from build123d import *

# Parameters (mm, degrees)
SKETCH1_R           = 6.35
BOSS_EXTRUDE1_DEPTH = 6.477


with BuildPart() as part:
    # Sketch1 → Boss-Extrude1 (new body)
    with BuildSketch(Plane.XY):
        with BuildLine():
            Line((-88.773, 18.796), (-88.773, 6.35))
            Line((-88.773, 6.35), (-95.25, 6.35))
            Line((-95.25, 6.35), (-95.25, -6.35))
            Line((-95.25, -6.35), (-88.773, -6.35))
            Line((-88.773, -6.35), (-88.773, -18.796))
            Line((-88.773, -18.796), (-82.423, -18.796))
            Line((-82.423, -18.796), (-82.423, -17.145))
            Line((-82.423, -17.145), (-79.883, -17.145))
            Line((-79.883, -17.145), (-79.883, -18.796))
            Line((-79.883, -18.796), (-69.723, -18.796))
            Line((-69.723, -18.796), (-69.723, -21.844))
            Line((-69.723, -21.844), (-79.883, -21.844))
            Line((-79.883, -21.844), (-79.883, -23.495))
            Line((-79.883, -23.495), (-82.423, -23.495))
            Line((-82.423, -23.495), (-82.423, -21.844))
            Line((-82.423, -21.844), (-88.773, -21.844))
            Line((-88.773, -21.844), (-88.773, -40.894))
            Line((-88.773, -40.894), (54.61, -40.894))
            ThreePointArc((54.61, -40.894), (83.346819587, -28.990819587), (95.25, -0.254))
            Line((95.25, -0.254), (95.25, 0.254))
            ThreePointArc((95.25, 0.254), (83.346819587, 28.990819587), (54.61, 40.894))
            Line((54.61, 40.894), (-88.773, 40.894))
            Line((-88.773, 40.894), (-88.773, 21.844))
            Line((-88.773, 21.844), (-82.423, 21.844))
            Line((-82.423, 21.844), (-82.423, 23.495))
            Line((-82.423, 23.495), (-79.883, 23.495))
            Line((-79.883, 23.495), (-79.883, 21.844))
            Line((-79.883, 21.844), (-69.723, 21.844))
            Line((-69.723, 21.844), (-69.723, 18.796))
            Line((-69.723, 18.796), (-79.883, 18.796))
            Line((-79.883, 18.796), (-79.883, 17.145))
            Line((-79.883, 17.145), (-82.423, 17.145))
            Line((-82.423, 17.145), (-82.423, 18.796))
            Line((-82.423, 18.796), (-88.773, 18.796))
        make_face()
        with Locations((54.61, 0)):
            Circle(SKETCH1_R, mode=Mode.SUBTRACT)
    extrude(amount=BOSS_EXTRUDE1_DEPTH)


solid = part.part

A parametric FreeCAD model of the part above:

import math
import FreeCAD as App
import Part
import Sketcher
Q = App.Units.Quantity

doc = App.newDocument("Part")
body = doc.addObject("PartDesign::Body", "Body")

# Sketch on XY plane
sketch1 = body.newObject("Sketcher::SketchObject", "Sketch")
sketch1.AttachmentSupport = (doc.getObject("XY_Plane"), [""])
sketch1.MapMode = "FlatFace"
sketch1.addGeometry([
    Part.LineSegment(App.Vector(-88.773, 18.796, 0), App.Vector(-88.773, 6.35, 0)),  # 0
    Part.LineSegment(App.Vector(-88.773, 6.35, 0), App.Vector(-95.25, 6.35, 0)),  # 1
    Part.LineSegment(App.Vector(-95.25, 6.35, 0), App.Vector(-95.25, -6.35, 0)),  # 2
    Part.LineSegment(App.Vector(-95.25, -6.35, 0), App.Vector(-88.773, -6.35, 0)),  # 3
    Part.LineSegment(App.Vector(-88.773, -6.35, 0), App.Vector(-88.773, -18.796, 0)),  # 4
    Part.LineSegment(App.Vector(-88.773, -18.796, 0), App.Vector(-82.423, -18.796, 0)),  # 5
    Part.LineSegment(App.Vector(-82.423, -18.796, 0), App.Vector(-82.423, -17.145, 0)),  # 6
    Part.LineSegment(App.Vector(-82.423, -17.145, 0), App.Vector(-79.883, -17.145, 0)),  # 7
    Part.LineSegment(App.Vector(-79.883, -17.145, 0), App.Vector(-79.883, -18.796, 0)),  # 8
    Part.LineSegment(App.Vector(-79.883, -18.796, 0), App.Vector(-69.723, -18.796, 0)),  # 9
    Part.LineSegment(App.Vector(-69.723, -18.796, 0), App.Vector(-69.723, -21.844, 0)),  # 10
    Part.LineSegment(App.Vector(-69.723, -21.844, 0), App.Vector(-79.883, -21.844, 0)),  # 11
    Part.LineSegment(App.Vector(-79.883, -21.844, 0), App.Vector(-79.883, -23.495, 0)),  # 12
    Part.LineSegment(App.Vector(-79.883, -23.495, 0), App.Vector(-82.423, -23.495, 0)),  # 13
    Part.LineSegment(App.Vector(-82.423, -23.495, 0), App.Vector(-82.423, -21.844, 0)),  # 14
    Part.LineSegment(App.Vector(-82.423, -21.844, 0), App.Vector(-88.773, -21.844, 0)),  # 15
    Part.LineSegment(App.Vector(-88.773, -21.844, 0), App.Vector(-88.773, -40.894, 0)),  # 16
    Part.LineSegment(App.Vector(-88.773, -40.894, 0), App.Vector(54.61, -40.894, 0)),  # 17
    Part.ArcOfCircle(Part.Circle(App.Vector(54.61, -0.254, 0), App.Vector(0, 0, 1), 40.64), math.radians(-90), math.radians(0)),  # 18
    Part.LineSegment(App.Vector(95.25, -0.254, 0), App.Vector(95.25, 0.254, 0)),  # 19
    Part.ArcOfCircle(Part.Circle(App.Vector(54.61, 0.254, 0), App.Vector(0, 0, 1), 40.64), math.radians(0), math.radians(90)),  # 20
    Part.LineSegment(App.Vector(54.61, 40.894, 0), App.Vector(-88.773, 40.894, 0)),  # 21
    Part.LineSegment(App.Vector(-88.773, 40.894, 0), App.Vector(-88.773, 21.844, 0)),  # 22
    Part.LineSegment(App.Vector(-88.773, 21.844, 0), App.Vector(-82.423, 21.844, 0)),  # 23
    Part.LineSegment(App.Vector(-82.423, 21.844, 0), App.Vector(-82.423, 23.495, 0)),  # 24
    Part.LineSegment(App.Vector(-82.423, 23.495, 0), App.Vector(-79.883, 23.495, 0)),  # 25
    Part.LineSegment(App.Vector(-79.883, 23.495, 0), App.Vector(-79.883, 21.844, 0)),  # 26
    Part.LineSegment(App.Vector(-79.883, 21.844, 0), App.Vector(-69.723, 21.844, 0)),  # 27
    Part.LineSegment(App.Vector(-69.723, 21.844, 0), App.Vector(-69.723, 18.796, 0)),  # 28
    Part.LineSegment(App.Vector(-69.723, 18.796, 0), App.Vector(-79.883, 18.796, 0)),  # 29
    Part.LineSegment(App.Vector(-79.883, 18.796, 0), App.Vector(-79.883, 17.145, 0)),  # 30
    Part.LineSegment(App.Vector(-79.883, 17.145, 0), App.Vector(-82.423, 17.145, 0)),  # 31
    Part.LineSegment(App.Vector(-82.423, 17.145, 0), App.Vector(-82.423, 18.796, 0)),  # 32
    Part.LineSegment(App.Vector(-82.423, 18.796, 0), App.Vector(-88.773, 18.796, 0)),  # 33
    Part.Circle(App.Vector(54.61, 0, 0), App.Vector(0, 0, 1), 6.35),  # 34
], False)
sketch1.addConstraint([
    Sketcher.Constraint("Coincident", 0, 2, 1, 1),
    Sketcher.Constraint("Coincident", 1, 2, 2, 1),
    Sketcher.Constraint("Coincident", 2, 2, 3, 1),
    Sketcher.Constraint("Coincident", 3, 2, 4, 1),
    Sketcher.Constraint("Coincident", 4, 2, 5, 1),
    Sketcher.Constraint("Coincident", 5, 2, 6, 1),
    Sketcher.Constraint("Coincident", 6, 2, 7, 1),
    Sketcher.Constraint("Coincident", 7, 2, 8, 1),
    Sketcher.Constraint("Coincident", 8, 2, 9, 1),
    Sketcher.Constraint("Coincident", 9, 2, 10, 1),
    Sketcher.Constraint("Coincident", 10, 2, 11, 1),
    Sketcher.Constraint("Coincident", 11, 2, 12, 1),
    Sketcher.Constraint("Coincident", 12, 2, 13, 1),
    Sketcher.Constraint("Coincident", 13, 2, 14, 1),
    Sketcher.Constraint("Coincident", 14, 2, 15, 1),
    Sketcher.Constraint("Coincident", 15, 2, 16, 1),
    Sketcher.Constraint("Coincident", 16, 2, 17, 1),
    Sketcher.Constraint("Tangent", 17, 2, 18, 1),
    Sketcher.Constraint("Tangent", 18, 2, 19, 1),
    Sketcher.Constraint("Tangent", 19, 2, 20, 1),
    Sketcher.Constraint("Tangent", 20, 2, 21, 1),
    Sketcher.Constraint("Coincident", 21, 2, 22, 1),
    Sketcher.Constraint("Coincident", 22, 2, 23, 1),
    Sketcher.Constraint("Coincident", 23, 2, 24, 1),
    Sketcher.Constraint("Coincident", 24, 2, 25, 1),
    Sketcher.Constraint("Coincident", 25, 2, 26, 1),
    Sketcher.Constraint("Coincident", 26, 2, 27, 1),
    Sketcher.Constraint("Coincident", 27, 2, 28, 1),
    Sketcher.Constraint("Coincident", 28, 2, 29, 1),
    Sketcher.Constraint("Coincident", 29, 2, 30, 1),
    Sketcher.Constraint("Coincident", 30, 2, 31, 1),
    Sketcher.Constraint("Coincident", 31, 2, 32, 1),
    Sketcher.Constraint("Coincident", 32, 2, 33, 1),
    Sketcher.Constraint("Coincident", 33, 2, 0, 1),
    Sketcher.Constraint("Vertical", 0),
    Sketcher.Constraint("Horizontal", 1),
    Sketcher.Constraint("Vertical", 2),
    Sketcher.Constraint("Horizontal", 3),
    Sketcher.Constraint("Vertical", 4),
    Sketcher.Constraint("Horizontal", 5),
    Sketcher.Constraint("Vertical", 6),
    Sketcher.Constraint("Horizontal", 7),
    Sketcher.Constraint("Vertical", 8),
    Sketcher.Constraint("Horizontal", 9),
    Sketcher.Constraint("Vertical", 10),
    Sketcher.Constraint("Horizontal", 11),
    Sketcher.Constraint("Vertical", 12),
    Sketcher.Constraint("Horizontal", 13),
    Sketcher.Constraint("Vertical", 14),
    Sketcher.Constraint("Horizontal", 15),
    Sketcher.Constraint("Vertical", 16),
    Sketcher.Constraint("Horizontal", 17),
    Sketcher.Constraint("Vertical", 19),
    Sketcher.Constraint("Horizontal", 21),
    Sketcher.Constraint("Vertical", 22),
    Sketcher.Constraint("Horizontal", 23),
    Sketcher.Constraint("Vertical", 24),
    Sketcher.Constraint("Horizontal", 25),
    Sketcher.Constraint("Vertical", 26),
    Sketcher.Constraint("Horizontal", 27),
    Sketcher.Constraint("Vertical", 28),
    Sketcher.Constraint("Horizontal", 29),
    Sketcher.Constraint("Vertical", 30),
    Sketcher.Constraint("Horizontal", 31),
    Sketcher.Constraint("Vertical", 32),
    Sketcher.Constraint("Horizontal", 33),
    Sketcher.Constraint("Equal", 18, 20),
    Sketcher.Constraint("Symmetric", 0, 2, 3, 2, -1),
    Sketcher.Constraint("Symmetric", 16, 2, 21, 2, -1),
    Sketcher.Constraint("Symmetric", 14, 2, 23, 2, -1),
    Sketcher.Constraint("Symmetric", 12, 2, 25, 2, -1),
    Sketcher.Constraint("Symmetric", 10, 2, 27, 2, -1),
    Sketcher.Constraint("Symmetric", 8, 2, 29, 2, -1),
    Sketcher.Constraint("Symmetric", 6, 2, 31, 2, -1),
    Sketcher.Constraint("PointOnObject", 34, 3, -1),
    Sketcher.Constraint("Horizontal", 5, 2, 8, 2),
    Sketcher.Constraint("Horizontal", 11, 2, 14, 2),
    Sketcher.Constraint("Horizontal", 29, 2, 32, 2),
    Sketcher.Constraint("Vertical", 20, 3, 34, 3),
    Sketcher.Constraint("Vertical", 8, 2, 11, 2),
    Sketcher.Constraint("Vertical", 6, 2, 13, 2),
    Sketcher.Constraint("Vertical", 4, 2, 15, 2),
    Sketcher.Constraint("Equal", 8, 12),
    Sketcher.Constraint("Diameter", 34, Q("0.5 in")),
    Sketcher.Constraint("Radius", 18, Q("1.6 in")),
    Sketcher.Constraint("DistanceX", 7, 1, 7, 2, Q("0.1 in")),
    Sketcher.Constraint("DistanceX", 9, 1, 9, 2, Q("0.4 in")),
    Sketcher.Constraint("DistanceY", 2, 2, 2, 1, Q("0.5 in")),
    Sketcher.Constraint("DistanceX", 5, 1, 5, 2, Q("0.25 in")),
    Sketcher.Constraint("DistanceY", 0, 2, 0, 1, Q("0.49 in")),
    Sketcher.Constraint("DistanceY", 10, 2, 10, 1, Q("0.12 in")),
    Sketcher.Constraint("DistanceY", 16, 2, 16, 1, Q("0.75 in")),
    Sketcher.Constraint("DistanceX", 1, 2, 20, 3, Q("5.9 in")),
    Sketcher.Constraint("DistanceX", 1, 2, 1, 1, Q("0.255 in")),
    Sketcher.Constraint("DistanceY", 6, 1, 6, 2, Q("0.065 in")),
    Sketcher.Constraint("DistanceX", -1, 1, 18, 3, Q("2.15 in")),
])
pad1 = body.newObject("PartDesign::Pad", "Pad")
pad1.Profile = sketch1
pad1.Length = Q("0.255 in")

doc.recompute()
